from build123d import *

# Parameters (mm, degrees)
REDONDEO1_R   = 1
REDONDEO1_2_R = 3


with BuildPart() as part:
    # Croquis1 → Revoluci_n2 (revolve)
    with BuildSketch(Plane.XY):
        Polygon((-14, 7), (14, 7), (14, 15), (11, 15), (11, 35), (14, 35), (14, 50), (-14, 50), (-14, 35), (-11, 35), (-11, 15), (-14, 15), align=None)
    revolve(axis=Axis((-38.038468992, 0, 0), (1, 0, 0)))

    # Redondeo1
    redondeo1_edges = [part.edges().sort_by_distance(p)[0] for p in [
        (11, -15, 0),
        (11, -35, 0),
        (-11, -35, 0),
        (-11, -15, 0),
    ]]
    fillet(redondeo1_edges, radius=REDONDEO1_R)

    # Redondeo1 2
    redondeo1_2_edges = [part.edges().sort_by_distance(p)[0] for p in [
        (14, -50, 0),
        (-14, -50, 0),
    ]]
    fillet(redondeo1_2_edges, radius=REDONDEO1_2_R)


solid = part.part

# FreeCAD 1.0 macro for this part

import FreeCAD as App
import Part
import Sketcher
from FreeCAD import Vector


def edges_at(feature, points):
    """Names of the edges that pass closest to the given points."""
    edges = feature.Shape.Edges
    near = lambda p: min(range(len(edges)), key=lambda i: edges[i].distToShape(Part.Vertex(*p))[0])
    return sorted({f"Edge{near(p) + 1}" for p in points})

doc = App.newDocument("Part")
params = doc.addObject("Spreadsheet::Sheet", "Params")
for row, (alias, value) in enumerate([
    ("sketch1_width", "28 mm"),
    ("sketch1_width2", "3 mm"),
    ("sketch1_height", "8 mm"),
    ("sketch1_height2", "20 mm"),
    ("sketch1_height3", "15 mm"),
    ("revolution_angle", "360 deg"),
    ("fillet_radius", "1 mm"),
    ("fillet2_radius", "3 mm"),
], start=1):
    params.set(f"A{row}", alias)
    params.set(f"B{row}", "=" + value)
    params.setAlias(f"B{row}", alias)

body = doc.addObject("PartDesign::Body", "Body")

# Sketch on XY plane
sketch1 = doc.addObject("Sketcher::SketchObject", "Sketch")
body.addObject(sketch1)
sketch1.AttachmentSupport = (doc.XY_Plane, [""])
sketch1.MapMode = "FlatFace"
sketch1.addGeometry(Part.LineSegment(Vector(-14, 7, 0), Vector(14, 7, 0)), False)
sketch1.addGeometry(Part.LineSegment(Vector(14, 7, 0), Vector(14, 15, 0)), False)
sketch1.addGeometry(Part.LineSegment(Vector(14, 15, 0), Vector(11, 15, 0)), False)
sketch1.addGeometry(Part.LineSegment(Vector(11, 15, 0), Vector(11, 35, 0)), False)
sketch1.addGeometry(Part.LineSegment(Vector(11, 35, 0), Vector(14, 35, 0)), False)
sketch1.addGeometry(Part.LineSegment(Vector(14, 35, 0), Vector(14, 50, 0)), False)
sketch1.addGeometry(Part.LineSegment(Vector(14, 50, 0), Vector(-14, 50, 0)), False)
sketch1.addGeometry(Part.LineSegment(Vector(-14, 50, 0), Vector(-14, 35, 0)), False)
sketch1.addGeometry(Part.LineSegment(Vector(-14, 35, 0), Vector(-11, 35, 0)), False)
sketch1.addGeometry(Part.LineSegment(Vector(-11, 35, 0), Vector(-11, 15, 0)), False)
sketch1.addGeometry(Part.LineSegment(Vector(-11, 15, 0), Vector(-14, 15, 0)), False)
sketch1.addGeometry(Part.LineSegment(Vector(-14, 15, 0), Vector(-14, 7, 0)), False)
sketch1.addConstraint(Sketcher.Constraint("Coincident", 0, 2, 1, 1))
sketch1.addConstraint(Sketcher.Constraint("Coincident", 1, 2, 2, 1))
sketch1.addConstraint(Sketcher.Constraint("Coincident", 2, 2, 3, 1))
sketch1.addConstraint(Sketcher.Constraint("Coincident", 3, 2, 4, 1))
sketch1.addConstraint(Sketcher.Constraint("Coincident", 4, 2, 5, 1))
sketch1.addConstraint(Sketcher.Constraint("Coincident", 5, 2, 6, 1))
sketch1.addConstraint(Sketcher.Constraint("Coincident", 6, 2, 7, 1))
sketch1.addConstraint(Sketcher.Constraint("Coincident", 7, 2, 8, 1))
sketch1.addConstraint(Sketcher.Constraint("Coincident", 8, 2, 9, 1))
sketch1.addConstraint(Sketcher.Constraint("Coincident", 9, 2, 10, 1))
sketch1.addConstraint(Sketcher.Constraint("Coincident", 10, 2, 11, 1))
sketch1.addConstraint(Sketcher.Constraint("Coincident", 11, 2, 0, 1))
sketch1.addConstraint(Sketcher.Constraint("Horizontal", 0))
sketch1.addConstraint(Sketcher.Constraint("Vertical", 1))
sketch1.addConstraint(Sketcher.Constraint("Horizontal", 2))
sketch1.addConstraint(Sketcher.Constraint("Vertical", 3))
sketch1.addConstraint(Sketcher.Constraint("Horizontal", 4))
sketch1.addConstraint(Sketcher.Constraint("Vertical", 5))
sketch1.addConstraint(Sketcher.Constraint("Horizontal", 6))
sketch1.addConstraint(Sketcher.Constraint("Vertical", 7))
sketch1.addConstraint(Sketcher.Constraint("Horizontal", 8))
sketch1.addConstraint(Sketcher.Constraint("Vertical", 9))
sketch1.addConstraint(Sketcher.Constraint("Horizontal", 10))
sketch1.addConstraint(Sketcher.Constraint("Vertical", 11))
sketch1.addConstraint(Sketcher.Constraint("Symmetric", 4, 2, 7, 2, -2))
sketch1.addConstraint(Sketcher.Constraint("Symmetric", 2, 2, 9, 2, -2))
sketch1.addConstraint(Sketcher.Constraint("Vertical", 1, 2, 4, 2))
sketch1.addConstraint(Sketcher.Constraint("Vertical", 7, 2, 10, 2))
sketch1.addConstraint(Sketcher.Constraint("DistanceX", 0, 1, 0, 2, 28.0))
sketch1.addConstraint(Sketcher.Constraint("DistanceX", 2, 2, 2, 1, 3.0))
sketch1.addConstraint(Sketcher.Constraint("DistanceY", 1, 1, 1, 2, 8.0))
sketch1.addConstraint(Sketcher.Constraint("DistanceY", 3, 1, 3, 2, 20.0))
sketch1.addConstraint(Sketcher.Constraint("DistanceY", 5, 1, 5, 2, 15.0))
sketch1.addConstraint(Sketcher.Constraint("DistanceY", -1, 1, 0, 2, 7.0))
sketch1.setExpression("Constraints[28]", "Params.sketch1_width")
sketch1.setExpression("Constraints[29]", "Params.sketch1_width2")
sketch1.setExpression("Constraints[30]", "Params.sketch1_height")
sketch1.setExpression("Constraints[31]", "Params.sketch1_height2")
sketch1.setExpression("Constraints[32]", "Params.sketch1_height3")
revolution = doc.addObject("PartDesign::Revolution", "Revolution")
body.addObject(revolution)
revolution.Profile = sketch1
revolution.ReferenceAxis = (sketch1, ["H_Axis"])
revolution.setExpression("Angle", "Params.revolution_angle")
doc.recompute()

fillet = doc.addObject("PartDesign::Fillet", "Fillet")
body.addObject(fillet)
fillet.Base = (revolution, edges_at(revolution, [
    (11, -15, 0),
    (11, -35, 0),
    (-11, -35, 0),
    (-11, -15, 0),
]))
fillet.setExpression("Radius", "Params.fillet_radius")
doc.recompute()

fillet2 = doc.addObject("PartDesign::Fillet", "Fillet001")
body.addObject(fillet2)
fillet2.Base = (fillet, edges_at(fillet, [(14, -50, 0), (-14, -50, 0)]))
fillet2.setExpression("Radius", "Params.fillet2_radius")

doc.recompute()
